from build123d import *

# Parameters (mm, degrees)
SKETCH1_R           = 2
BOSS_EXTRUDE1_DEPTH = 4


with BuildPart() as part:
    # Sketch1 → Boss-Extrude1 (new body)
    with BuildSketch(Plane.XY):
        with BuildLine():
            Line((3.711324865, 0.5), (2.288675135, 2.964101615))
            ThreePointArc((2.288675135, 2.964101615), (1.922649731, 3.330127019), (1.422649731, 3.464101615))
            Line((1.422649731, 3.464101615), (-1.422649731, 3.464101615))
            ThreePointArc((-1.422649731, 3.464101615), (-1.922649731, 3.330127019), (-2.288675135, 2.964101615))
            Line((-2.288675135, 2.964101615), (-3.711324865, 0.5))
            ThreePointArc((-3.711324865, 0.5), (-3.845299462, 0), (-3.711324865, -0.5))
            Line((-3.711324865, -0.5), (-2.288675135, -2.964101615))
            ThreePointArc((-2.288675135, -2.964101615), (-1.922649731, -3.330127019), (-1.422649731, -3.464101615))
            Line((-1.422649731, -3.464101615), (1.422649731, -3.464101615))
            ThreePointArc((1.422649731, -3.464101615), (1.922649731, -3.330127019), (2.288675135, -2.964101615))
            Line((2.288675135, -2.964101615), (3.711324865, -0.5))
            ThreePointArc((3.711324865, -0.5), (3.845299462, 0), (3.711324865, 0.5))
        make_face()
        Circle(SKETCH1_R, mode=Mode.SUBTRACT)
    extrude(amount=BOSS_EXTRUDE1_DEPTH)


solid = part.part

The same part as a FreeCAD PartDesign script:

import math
import FreeCAD as App
import Part
import Sketcher
from FreeCAD import Vector
Q = App.Units.Quantity

doc = App.newDocument("Part")
body = doc.addObject("PartDesign::Body", "Body")

sketch1 = body.newObject("Sketcher::SketchObject", "Sketch")
sketch1.AttachmentSupport = (doc.getObject("XY_Plane"), [""])
sketch1.MapMode = "FlatFace"
sketch1.addGeometry(Part.LineSegment(Vector(3.7, 0.5, 0), Vector(2.3, 3, 0)), False)
sketch1.addGeometry(Part.ArcOfCircle(Part.Circle(Vector(1.4, 2.5, 0), Vector(0, 0, 1), 1), math.radians(30), math.radians(90)), False)
sketch1.addGeometry(Part.LineSegment(Vector(1.4, 3.5, 0), Vector(-1.4, 3.5, 0)), False)
sketch1.addGeometry(Part.ArcOfCircle(Part.Circle(Vector(-1.4, 2.5, 0), Vector(0, 0, 1), 1), math.radians(90), math.radians(150)), False)
sketch1.addGeometry(Part.LineSegment(Vector(-2.3, 3, 0), Vector(-3.7, 0.5, 0)), False)
sketch1.addGeometry(Part.ArcOfCircle(Part.Circle(Vector(-2.8, 0, 0), Vector(0, 0, 1), 1), math.radians(150), math.radians(210)), False)
sketch1.addGeometry(Part.LineSegment(Vector(-3.7, -0.5, 0), Vector(-2.3, -3, 0)), False)
sketch1.addGeometry(Part.ArcOfCircle(Part.Circle(Vector(-1.4, -2.5, 0), Vector(0, 0, 1), 1), math.radians(-150), math.radians(-90)), False)
sketch1.addGeometry(Part.LineSegment(Vector(-1.4, -3.5, 0), Vector(1.4, -3.5, 0)), False)
sketch1.addGeometry(Part.ArcOfCircle(Part.Circle(Vector(1.4, -2.5, 0), Vector(0, 0, 1), 1), math.radians(-90), math.radians(-30)), False)
sketch1.addGeometry(Part.LineSegment(Vector(2.3, -3, 0), Vector(3.7, -0.5, 0)), False)
sketch1.addGeometry(Part.ArcOfCircle(Part.Circle(Vector(2.8, 0, 0), Vector(0, 0, 1), 1), math.radians(-30), math.radians(30)), False)
sketch1.addGeometry(Part.Circle(Vector(0, 0, 0), Vector(0, 0, 1), 2), False)
sketch1.addConstraint(Sketcher.Constraint("Tangent", 0, 2, 1, 1))
sketch1.addConstraint(Sketcher.Constraint("Tangent", 1, 2, 2, 1))
sketch1.addConstraint(Sketcher.Constraint("Tangent", 2, 2, 3, 1))
sketch1.addConstraint(Sketcher.Constraint("Tangent", 3, 2, 4, 1))
sketch1.addConstraint(Sketcher.Constraint("Tangent", 4, 2, 5, 1))
sketch1.addConstraint(Sketcher.Constraint("Tangent", 5, 2, 6, 1))
sketch1.addConstraint(Sketcher.Constraint("Tangent", 6, 2, 7, 1))
sketch1.addConstraint(Sketcher.Constraint("Tangent", 7, 2, 8, 1))
sketch1.addConstraint(Sketcher.Constraint("Tangent", 8, 2, 9, 1))
sketch1.addConstraint(Sketcher.Constraint("Tangent", 9, 2, 10, 1))
sketch1.addConstraint(Sketcher.Constraint("Tangent", 10, 2, 11, 1))
sketch1.addConstraint(Sketcher.Constraint("Tangent", 11, 2, 0, 1))
sketch1.addConstraint(Sketcher.Constraint("Horizontal", 2))
sketch1.addConstraint(Sketcher.Constraint("Horizontal", 8))
sketch1.addConstraint(Sketcher.Constraint("Coincident", 12, 3, -1, 1))
sketch1.addConstraint(Sketcher.Constraint("Equal", 1, 3))
sketch1.addConstraint(Sketcher.Constraint("Equal", 3, 5))
sketch1.addConstraint(Sketcher.Constraint("Equal", 5, 7))
sketch1.addConstraint(Sketcher.Constraint("Equal", 7, 9))
sketch1.addConstraint(Sketcher.Constraint("Equal", 9, 11))
sketch1.addConstraint(Sketcher.Constraint("Symmetric", 1, 3, 7, 3, -1, 1))
sketch1.addConstraint(Sketcher.Constraint("Symmetric", 5, 3, 11, 3, -1, 1))
sketch1.addConstraint(Sketcher.Constraint("Symmetric", 0, 2, 3, 2, -2))
sketch1.addConstraint(Sketcher.Constraint("Parallel", 4, 10))
sketch1.addConstraint(Sketcher.Constraint("Diameter", 12, 4.0))
sketch1.addConstraint(Sketcher.Constraint("Radius", 1, 1.0))
sketch1.addConstraint(Sketcher.Constraint("Angle", 0, Q("120 deg")))
sketch1.addConstraint(Sketcher.Constraint("DistanceX", 2, 2, 2, 1, 2.845299))
sketch1.addConstraint(Sketcher.Constraint("Distance", 0, 2.845299))
pad1 = body.newObject("PartDesign::Pad", "Pad")
pad1.Profile = sketch1
pad1.Length = 4

doc.recompute()
